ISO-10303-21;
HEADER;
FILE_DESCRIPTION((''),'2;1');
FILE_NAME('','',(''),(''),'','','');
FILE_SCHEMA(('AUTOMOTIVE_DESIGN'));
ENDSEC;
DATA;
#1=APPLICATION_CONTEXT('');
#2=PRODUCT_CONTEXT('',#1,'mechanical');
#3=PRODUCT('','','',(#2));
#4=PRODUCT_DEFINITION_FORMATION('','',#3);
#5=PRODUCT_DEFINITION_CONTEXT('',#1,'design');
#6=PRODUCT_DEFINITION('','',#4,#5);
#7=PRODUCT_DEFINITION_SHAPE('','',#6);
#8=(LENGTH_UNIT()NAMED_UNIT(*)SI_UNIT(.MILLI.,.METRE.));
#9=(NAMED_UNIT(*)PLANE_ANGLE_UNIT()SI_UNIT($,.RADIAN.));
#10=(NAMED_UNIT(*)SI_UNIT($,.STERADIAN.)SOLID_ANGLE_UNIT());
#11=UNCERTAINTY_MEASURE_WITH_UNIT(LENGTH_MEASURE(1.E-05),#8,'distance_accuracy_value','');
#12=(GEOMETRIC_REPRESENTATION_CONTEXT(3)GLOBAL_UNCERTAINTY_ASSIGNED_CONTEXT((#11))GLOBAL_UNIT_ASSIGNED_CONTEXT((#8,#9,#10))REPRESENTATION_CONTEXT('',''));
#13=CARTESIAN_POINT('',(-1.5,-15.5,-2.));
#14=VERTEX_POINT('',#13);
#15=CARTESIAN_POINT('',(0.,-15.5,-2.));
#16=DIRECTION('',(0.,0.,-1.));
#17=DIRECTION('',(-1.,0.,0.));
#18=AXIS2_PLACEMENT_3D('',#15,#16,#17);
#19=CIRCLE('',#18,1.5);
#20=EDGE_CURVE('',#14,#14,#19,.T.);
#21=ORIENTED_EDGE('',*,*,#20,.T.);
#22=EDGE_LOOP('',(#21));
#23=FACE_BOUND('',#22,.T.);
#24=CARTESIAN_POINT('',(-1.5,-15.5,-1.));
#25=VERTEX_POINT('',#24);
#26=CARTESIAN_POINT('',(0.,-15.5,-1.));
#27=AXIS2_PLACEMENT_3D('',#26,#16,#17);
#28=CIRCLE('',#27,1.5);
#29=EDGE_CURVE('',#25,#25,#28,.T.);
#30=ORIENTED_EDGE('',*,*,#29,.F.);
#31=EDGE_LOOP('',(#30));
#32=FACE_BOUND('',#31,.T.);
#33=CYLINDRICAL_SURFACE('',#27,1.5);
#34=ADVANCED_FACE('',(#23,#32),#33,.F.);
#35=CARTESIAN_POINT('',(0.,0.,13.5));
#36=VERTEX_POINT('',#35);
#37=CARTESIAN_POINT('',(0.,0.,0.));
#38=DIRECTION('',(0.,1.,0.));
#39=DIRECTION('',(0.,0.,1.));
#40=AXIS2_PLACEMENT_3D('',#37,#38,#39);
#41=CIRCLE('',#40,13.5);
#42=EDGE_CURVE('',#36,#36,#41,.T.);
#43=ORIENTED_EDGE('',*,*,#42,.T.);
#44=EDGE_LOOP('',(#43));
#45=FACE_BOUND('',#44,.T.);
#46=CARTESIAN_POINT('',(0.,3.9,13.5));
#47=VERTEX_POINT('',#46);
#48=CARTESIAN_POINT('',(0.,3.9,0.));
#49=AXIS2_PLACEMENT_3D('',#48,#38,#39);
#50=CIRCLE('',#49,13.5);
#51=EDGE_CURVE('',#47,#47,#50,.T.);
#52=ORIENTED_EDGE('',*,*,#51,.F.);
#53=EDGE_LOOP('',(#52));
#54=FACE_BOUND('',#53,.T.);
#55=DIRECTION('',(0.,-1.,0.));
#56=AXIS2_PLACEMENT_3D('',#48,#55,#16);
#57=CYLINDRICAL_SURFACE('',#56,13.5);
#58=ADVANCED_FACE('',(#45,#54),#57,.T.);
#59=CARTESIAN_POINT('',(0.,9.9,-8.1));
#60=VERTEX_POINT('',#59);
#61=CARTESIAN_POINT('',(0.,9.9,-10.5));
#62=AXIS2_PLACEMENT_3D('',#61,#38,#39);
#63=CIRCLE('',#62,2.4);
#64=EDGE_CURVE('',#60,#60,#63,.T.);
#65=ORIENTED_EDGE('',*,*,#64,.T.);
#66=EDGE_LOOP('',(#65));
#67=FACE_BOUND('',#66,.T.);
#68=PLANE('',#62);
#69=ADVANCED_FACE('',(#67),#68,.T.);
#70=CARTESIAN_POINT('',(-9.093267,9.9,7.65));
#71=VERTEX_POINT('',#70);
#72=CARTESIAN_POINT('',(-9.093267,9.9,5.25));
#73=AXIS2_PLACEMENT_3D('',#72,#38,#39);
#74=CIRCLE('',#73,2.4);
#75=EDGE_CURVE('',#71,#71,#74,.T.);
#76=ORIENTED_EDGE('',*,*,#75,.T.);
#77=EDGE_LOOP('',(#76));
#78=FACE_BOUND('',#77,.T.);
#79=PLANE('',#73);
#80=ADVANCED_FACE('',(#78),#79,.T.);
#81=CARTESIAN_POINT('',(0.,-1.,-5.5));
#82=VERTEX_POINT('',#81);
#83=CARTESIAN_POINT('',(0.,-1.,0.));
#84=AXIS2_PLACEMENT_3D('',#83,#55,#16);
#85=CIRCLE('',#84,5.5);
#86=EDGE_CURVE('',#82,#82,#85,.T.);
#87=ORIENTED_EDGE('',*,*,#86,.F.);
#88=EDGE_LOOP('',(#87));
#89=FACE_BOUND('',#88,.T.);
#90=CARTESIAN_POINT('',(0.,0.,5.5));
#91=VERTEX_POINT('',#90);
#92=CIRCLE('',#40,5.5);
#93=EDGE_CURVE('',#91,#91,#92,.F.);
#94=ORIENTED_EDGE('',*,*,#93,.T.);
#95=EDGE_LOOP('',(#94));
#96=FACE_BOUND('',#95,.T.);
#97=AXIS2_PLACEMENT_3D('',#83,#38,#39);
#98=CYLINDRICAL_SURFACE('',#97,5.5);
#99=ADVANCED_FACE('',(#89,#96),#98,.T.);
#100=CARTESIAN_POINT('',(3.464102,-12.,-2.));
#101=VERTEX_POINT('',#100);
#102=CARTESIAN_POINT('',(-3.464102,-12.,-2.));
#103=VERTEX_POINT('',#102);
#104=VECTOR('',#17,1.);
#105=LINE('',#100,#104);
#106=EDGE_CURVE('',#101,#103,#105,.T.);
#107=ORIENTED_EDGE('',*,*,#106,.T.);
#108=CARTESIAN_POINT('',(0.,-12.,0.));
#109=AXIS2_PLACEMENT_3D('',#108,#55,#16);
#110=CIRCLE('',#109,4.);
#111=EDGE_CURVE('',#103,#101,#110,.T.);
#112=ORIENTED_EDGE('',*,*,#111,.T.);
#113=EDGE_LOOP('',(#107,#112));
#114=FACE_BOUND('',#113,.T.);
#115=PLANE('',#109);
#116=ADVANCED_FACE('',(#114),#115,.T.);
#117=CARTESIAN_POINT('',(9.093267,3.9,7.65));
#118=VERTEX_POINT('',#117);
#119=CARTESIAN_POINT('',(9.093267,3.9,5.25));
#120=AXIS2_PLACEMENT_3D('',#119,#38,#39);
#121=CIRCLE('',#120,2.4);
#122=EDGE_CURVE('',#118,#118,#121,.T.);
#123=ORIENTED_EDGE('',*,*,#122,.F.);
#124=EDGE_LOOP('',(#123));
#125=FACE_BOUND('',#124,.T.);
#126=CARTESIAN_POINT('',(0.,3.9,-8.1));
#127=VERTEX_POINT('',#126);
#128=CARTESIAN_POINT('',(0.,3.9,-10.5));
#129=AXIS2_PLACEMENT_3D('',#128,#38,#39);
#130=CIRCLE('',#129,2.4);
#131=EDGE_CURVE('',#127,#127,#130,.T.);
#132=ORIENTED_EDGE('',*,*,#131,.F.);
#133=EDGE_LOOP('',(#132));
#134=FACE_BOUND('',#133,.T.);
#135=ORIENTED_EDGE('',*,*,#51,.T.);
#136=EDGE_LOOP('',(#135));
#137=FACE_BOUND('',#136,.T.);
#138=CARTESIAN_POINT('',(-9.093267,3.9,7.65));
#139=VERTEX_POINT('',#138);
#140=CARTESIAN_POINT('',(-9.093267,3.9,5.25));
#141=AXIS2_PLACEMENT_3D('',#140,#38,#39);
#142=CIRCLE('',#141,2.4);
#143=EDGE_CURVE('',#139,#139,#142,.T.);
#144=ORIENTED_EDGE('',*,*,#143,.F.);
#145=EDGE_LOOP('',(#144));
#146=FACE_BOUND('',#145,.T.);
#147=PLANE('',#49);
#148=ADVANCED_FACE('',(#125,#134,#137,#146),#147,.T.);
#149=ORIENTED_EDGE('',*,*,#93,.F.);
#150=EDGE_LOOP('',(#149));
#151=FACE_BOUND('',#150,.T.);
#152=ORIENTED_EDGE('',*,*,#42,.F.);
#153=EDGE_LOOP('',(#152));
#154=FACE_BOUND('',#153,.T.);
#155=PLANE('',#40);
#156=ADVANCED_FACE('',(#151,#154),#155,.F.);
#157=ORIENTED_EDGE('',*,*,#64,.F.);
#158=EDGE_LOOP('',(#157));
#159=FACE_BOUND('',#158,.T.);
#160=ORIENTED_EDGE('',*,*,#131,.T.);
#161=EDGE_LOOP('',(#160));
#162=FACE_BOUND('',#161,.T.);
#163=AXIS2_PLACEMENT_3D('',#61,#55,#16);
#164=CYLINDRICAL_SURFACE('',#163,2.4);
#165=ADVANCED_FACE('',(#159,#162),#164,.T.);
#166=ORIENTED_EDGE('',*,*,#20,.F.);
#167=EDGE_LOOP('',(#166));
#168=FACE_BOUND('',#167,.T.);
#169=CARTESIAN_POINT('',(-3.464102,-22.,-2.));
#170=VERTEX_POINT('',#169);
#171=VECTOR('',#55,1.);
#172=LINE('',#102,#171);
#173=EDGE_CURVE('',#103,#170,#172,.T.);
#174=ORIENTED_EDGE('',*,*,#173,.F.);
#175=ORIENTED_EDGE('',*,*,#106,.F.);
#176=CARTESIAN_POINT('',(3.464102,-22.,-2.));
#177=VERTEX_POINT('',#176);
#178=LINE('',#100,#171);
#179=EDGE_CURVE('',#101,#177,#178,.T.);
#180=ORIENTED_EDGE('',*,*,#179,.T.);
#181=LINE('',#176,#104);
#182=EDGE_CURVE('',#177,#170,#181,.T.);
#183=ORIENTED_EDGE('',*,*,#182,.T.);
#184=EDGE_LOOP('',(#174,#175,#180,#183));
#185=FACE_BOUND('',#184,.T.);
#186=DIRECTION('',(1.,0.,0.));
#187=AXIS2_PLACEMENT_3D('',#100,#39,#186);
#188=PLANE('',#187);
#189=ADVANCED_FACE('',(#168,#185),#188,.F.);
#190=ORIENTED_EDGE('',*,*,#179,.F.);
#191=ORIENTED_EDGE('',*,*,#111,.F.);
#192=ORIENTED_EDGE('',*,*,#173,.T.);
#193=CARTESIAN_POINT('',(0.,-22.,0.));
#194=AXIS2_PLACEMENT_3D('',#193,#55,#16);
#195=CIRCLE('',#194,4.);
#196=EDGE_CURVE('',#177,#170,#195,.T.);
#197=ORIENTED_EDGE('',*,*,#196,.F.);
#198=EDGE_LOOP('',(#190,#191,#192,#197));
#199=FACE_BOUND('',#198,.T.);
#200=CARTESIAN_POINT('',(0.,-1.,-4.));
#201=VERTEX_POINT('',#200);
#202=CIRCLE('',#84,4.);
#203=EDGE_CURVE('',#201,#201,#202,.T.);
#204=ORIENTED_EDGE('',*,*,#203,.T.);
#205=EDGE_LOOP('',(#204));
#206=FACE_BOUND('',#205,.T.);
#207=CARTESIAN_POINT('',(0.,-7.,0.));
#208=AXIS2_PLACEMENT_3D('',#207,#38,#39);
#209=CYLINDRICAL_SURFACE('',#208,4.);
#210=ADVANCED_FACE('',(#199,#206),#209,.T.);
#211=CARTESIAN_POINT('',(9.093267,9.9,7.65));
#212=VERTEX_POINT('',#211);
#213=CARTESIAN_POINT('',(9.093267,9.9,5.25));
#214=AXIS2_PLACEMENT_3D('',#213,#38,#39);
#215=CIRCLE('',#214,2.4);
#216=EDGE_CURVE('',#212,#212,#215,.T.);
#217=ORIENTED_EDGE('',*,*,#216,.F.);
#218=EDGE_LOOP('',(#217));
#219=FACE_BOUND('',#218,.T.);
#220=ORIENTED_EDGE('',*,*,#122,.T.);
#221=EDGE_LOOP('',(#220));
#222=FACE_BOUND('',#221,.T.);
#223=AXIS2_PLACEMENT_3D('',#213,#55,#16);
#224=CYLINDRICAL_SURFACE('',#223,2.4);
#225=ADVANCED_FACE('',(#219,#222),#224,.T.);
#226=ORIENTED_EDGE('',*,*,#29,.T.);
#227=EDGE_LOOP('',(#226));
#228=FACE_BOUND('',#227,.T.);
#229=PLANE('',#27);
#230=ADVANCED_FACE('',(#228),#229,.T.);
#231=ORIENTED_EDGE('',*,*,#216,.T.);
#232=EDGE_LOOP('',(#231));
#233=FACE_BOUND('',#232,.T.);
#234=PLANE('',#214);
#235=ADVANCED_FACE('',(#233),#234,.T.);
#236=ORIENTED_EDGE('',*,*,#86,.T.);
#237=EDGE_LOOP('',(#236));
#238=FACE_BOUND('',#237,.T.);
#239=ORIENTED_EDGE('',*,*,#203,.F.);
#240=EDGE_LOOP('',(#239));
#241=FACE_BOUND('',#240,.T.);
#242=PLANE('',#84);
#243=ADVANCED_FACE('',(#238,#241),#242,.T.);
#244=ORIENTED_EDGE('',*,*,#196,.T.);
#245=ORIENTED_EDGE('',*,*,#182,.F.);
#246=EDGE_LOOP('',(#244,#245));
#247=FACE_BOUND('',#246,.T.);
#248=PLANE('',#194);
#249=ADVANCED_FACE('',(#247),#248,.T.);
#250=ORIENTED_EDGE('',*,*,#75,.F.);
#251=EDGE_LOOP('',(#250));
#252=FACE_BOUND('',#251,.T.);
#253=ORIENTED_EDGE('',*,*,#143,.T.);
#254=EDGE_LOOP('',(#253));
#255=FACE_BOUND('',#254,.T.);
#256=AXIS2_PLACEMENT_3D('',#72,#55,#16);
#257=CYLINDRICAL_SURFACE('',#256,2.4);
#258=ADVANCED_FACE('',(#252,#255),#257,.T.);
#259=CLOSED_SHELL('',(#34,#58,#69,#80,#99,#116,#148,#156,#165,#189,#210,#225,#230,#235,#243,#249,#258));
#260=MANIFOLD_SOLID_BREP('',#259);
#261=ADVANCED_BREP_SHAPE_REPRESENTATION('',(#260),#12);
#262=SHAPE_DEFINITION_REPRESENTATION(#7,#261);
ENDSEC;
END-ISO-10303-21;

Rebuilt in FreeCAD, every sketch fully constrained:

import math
import FreeCAD as App
import Part
import Sketcher

V = App.Vector

doc = App.newDocument("Part")
body = doc.addObject("PartDesign::Body", "Body")

# Sketch on XZ plane
sketch1 = body.newObject("Sketcher::SketchObject", "Sketch")
sketch1.AttachmentSupport = (doc.getObject("XZ_Plane"), [""])
sketch1.MapMode = "FlatFace"
sketch1.addGeometry(Part.Circle(V(0, 0, 0), V(0, 0, 1), 14), False)
sketch1.addConstraint([
    Sketcher.Constraint("Coincident", 0, 3, -1, 1),
    Sketcher.Constraint("Diameter", 0, 27.0),
])
pad1 = body.newObject("PartDesign::Pad", "Pad")
pad1.Profile = sketch1
pad1.Length = 3.9
pad1.Reversed = True

# Sketch on XZ plane
sketch2 = body.newObject("Sketcher::SketchObject", "Sketch001")
sketch2.AttachmentSupport = (doc.getObject("XZ_Plane"), [""])
sketch2.MapMode = "FlatFace"
sketch2.AttachmentOffset = App.Placement(V(0, 0, -3.9), App.Rotation())
sketch2.addGeometry([
    Part.Circle(V(0, -10.5, 0), V(0, 0, 1), 2.4),
    Part.Circle(V(9.1, 5.2, 0), V(0, 0, 1), 2.4),
    Part.Circle(V(-9.1, 5.2, 0), V(0, 0, 1), 2.4),
], False)
sketch2.addConstraint([
    Sketcher.Constraint("Equal", 0, 1),
    Sketcher.Constraint("Equal", 1, 2),
    Sketcher.Constraint("Symmetric", 1, 3, 2, 3, -2),
    Sketcher.Constraint("PointOnObject", 0, 3, -2),
    Sketcher.Constraint("Diameter", 0, 4.8),
    Sketcher.Constraint("DistanceY", 0, 3, -1, 1, 10.5),
    Sketcher.Constraint("DistanceY", -1, 1, 1, 3, 5.25),
    Sketcher.Constraint("DistanceX", -1, 1, 1, 3, 9.093267),
])
pad2 = body.newObject("PartDesign::Pad", "Pad001")
pad2.Profile = sketch2
pad2.Length = 6
pad2.Reversed = True

# Sketch on XZ plane
sketch3 = body.newObject("Sketcher::SketchObject", "Sketch002")
sketch3.AttachmentSupport = (doc.getObject("XZ_Plane"), [""])
sketch3.MapMode = "FlatFace"
sketch3.addGeometry(Part.Circle(V(0, 0, 0), V(0, 0, 1), 4), False)
sketch3.addConstraint([
    Sketcher.Constraint("Coincident", 0, 3, -1, 1),
    Sketcher.Constraint("Diameter", 0, 8.0),
])
pad3 = body.newObject("PartDesign::Pad", "Pad002")
pad3.Profile = sketch3
pad3.Length = 7

# Sketch on XZ plane
sketch4 = body.newObject("Sketcher::SketchObject", "Sketch003")
sketch4.AttachmentSupport = (doc.getObject("XZ_Plane"), [""])
sketch4.MapMode = "FlatFace"
sketch4.addGeometry(Part.Circle(V(0, 0, 0), V(0, 0, 1), 6), False)
sketch4.addConstraint([
    Sketcher.Constraint("Coincident", 0, 3, -1, 1),
    Sketcher.Constraint("Diameter", 0, 11.0),
])
pad4 = body.newObject("PartDesign::Pad", "Pad003")
pad4.Profile = sketch4
pad4.Length = 1

# Sketch on XZ plane
sketch5 = body.newObject("Sketcher::SketchObject", "Sketch004")
sketch5.AttachmentSupport = (doc.getObject("XZ_Plane"), [""])
sketch5.MapMode = "FlatFace"
sketch5.AttachmentOffset = App.Placement(V(0, 0, 7), App.Rotation())
sketch5.addGeometry(Part.Circle(V(0, 0, 0), V(0, 0, 1), 4), False)
sketch5.addConstraint([
    Sketcher.Constraint("Coincident", 0, 3, -1, 1),
    Sketcher.Constraint("Diameter", 0, 8.0),
])
pad5 = body.newObject("PartDesign::Pad", "Pad004")
pad5.Profile = sketch5
pad5.Length = 15

# Sketch on XZ plane
sketch6 = body.newObject("Sketcher::SketchObject", "Sketch005")
sketch6.AttachmentSupport = (doc.getObject("XZ_Plane"), [""])
sketch6.MapMode = "FlatFace"
sketch6.AttachmentOffset = App.Placement(V(0, 0, 12), App.Rotation())
sketch6.addGeometry([
    Part.LineSegment(V(3.5, -2, 0), V(-3.5, -2, 0)),
    Part.ArcOfCircle(Part.Circle(V(0, 0, 0), V(0, 0, 1), 4), math.radians(-150), math.radians(-30)),
], False)
sketch6.addConstraint([
    Sketcher.Constraint("Coincident", 0, 1, 1, 2),
    Sketcher.Constraint("Coincident", 1, 1, 0, 2),
    Sketcher.Constraint("Horizontal", 0),
    Sketcher.Constraint("Coincident", 1, 3, -1, 1),
    Sketcher.Constraint("Radius", 1, 4.0),
    Sketcher.Constraint("DistanceY", 0, 1, -1, 1, 2.0),
])
pocket1 = body.newObject("PartDesign::Pocket", "Pocket")
pocket1.Profile = sketch6
pocket1.Length = 10
pocket1.Reversed = True

# Sketch on XY plane
sketch7 = body.newObject("Sketcher::SketchObject", "Sketch006")
sketch7.AttachmentSupport = (doc.getObject("XY_Plane"), [""])
sketch7.MapMode = "FlatFace"
sketch7.AttachmentOffset = App.Placement(V(0, 0, -2), App.Rotation())
sketch7.addGeometry(Part.Circle(V(0, -15.5, 0), V(0, 0, 1), 1.5), False)
sketch7.addConstraint([
    Sketcher.Constraint("PointOnObject", 0, 3, -2),
    Sketcher.Constraint("Diameter", 0, 3.0),
    Sketcher.Constraint("DistanceY", 0, 3, -1, 1, 15.5),
])
pocket2 = body.newObject("PartDesign::Pocket", "Pocket001")
pocket2.Profile = sketch7
pocket2.Length = 1
pocket2.Reversed = True

doc.recompute()
